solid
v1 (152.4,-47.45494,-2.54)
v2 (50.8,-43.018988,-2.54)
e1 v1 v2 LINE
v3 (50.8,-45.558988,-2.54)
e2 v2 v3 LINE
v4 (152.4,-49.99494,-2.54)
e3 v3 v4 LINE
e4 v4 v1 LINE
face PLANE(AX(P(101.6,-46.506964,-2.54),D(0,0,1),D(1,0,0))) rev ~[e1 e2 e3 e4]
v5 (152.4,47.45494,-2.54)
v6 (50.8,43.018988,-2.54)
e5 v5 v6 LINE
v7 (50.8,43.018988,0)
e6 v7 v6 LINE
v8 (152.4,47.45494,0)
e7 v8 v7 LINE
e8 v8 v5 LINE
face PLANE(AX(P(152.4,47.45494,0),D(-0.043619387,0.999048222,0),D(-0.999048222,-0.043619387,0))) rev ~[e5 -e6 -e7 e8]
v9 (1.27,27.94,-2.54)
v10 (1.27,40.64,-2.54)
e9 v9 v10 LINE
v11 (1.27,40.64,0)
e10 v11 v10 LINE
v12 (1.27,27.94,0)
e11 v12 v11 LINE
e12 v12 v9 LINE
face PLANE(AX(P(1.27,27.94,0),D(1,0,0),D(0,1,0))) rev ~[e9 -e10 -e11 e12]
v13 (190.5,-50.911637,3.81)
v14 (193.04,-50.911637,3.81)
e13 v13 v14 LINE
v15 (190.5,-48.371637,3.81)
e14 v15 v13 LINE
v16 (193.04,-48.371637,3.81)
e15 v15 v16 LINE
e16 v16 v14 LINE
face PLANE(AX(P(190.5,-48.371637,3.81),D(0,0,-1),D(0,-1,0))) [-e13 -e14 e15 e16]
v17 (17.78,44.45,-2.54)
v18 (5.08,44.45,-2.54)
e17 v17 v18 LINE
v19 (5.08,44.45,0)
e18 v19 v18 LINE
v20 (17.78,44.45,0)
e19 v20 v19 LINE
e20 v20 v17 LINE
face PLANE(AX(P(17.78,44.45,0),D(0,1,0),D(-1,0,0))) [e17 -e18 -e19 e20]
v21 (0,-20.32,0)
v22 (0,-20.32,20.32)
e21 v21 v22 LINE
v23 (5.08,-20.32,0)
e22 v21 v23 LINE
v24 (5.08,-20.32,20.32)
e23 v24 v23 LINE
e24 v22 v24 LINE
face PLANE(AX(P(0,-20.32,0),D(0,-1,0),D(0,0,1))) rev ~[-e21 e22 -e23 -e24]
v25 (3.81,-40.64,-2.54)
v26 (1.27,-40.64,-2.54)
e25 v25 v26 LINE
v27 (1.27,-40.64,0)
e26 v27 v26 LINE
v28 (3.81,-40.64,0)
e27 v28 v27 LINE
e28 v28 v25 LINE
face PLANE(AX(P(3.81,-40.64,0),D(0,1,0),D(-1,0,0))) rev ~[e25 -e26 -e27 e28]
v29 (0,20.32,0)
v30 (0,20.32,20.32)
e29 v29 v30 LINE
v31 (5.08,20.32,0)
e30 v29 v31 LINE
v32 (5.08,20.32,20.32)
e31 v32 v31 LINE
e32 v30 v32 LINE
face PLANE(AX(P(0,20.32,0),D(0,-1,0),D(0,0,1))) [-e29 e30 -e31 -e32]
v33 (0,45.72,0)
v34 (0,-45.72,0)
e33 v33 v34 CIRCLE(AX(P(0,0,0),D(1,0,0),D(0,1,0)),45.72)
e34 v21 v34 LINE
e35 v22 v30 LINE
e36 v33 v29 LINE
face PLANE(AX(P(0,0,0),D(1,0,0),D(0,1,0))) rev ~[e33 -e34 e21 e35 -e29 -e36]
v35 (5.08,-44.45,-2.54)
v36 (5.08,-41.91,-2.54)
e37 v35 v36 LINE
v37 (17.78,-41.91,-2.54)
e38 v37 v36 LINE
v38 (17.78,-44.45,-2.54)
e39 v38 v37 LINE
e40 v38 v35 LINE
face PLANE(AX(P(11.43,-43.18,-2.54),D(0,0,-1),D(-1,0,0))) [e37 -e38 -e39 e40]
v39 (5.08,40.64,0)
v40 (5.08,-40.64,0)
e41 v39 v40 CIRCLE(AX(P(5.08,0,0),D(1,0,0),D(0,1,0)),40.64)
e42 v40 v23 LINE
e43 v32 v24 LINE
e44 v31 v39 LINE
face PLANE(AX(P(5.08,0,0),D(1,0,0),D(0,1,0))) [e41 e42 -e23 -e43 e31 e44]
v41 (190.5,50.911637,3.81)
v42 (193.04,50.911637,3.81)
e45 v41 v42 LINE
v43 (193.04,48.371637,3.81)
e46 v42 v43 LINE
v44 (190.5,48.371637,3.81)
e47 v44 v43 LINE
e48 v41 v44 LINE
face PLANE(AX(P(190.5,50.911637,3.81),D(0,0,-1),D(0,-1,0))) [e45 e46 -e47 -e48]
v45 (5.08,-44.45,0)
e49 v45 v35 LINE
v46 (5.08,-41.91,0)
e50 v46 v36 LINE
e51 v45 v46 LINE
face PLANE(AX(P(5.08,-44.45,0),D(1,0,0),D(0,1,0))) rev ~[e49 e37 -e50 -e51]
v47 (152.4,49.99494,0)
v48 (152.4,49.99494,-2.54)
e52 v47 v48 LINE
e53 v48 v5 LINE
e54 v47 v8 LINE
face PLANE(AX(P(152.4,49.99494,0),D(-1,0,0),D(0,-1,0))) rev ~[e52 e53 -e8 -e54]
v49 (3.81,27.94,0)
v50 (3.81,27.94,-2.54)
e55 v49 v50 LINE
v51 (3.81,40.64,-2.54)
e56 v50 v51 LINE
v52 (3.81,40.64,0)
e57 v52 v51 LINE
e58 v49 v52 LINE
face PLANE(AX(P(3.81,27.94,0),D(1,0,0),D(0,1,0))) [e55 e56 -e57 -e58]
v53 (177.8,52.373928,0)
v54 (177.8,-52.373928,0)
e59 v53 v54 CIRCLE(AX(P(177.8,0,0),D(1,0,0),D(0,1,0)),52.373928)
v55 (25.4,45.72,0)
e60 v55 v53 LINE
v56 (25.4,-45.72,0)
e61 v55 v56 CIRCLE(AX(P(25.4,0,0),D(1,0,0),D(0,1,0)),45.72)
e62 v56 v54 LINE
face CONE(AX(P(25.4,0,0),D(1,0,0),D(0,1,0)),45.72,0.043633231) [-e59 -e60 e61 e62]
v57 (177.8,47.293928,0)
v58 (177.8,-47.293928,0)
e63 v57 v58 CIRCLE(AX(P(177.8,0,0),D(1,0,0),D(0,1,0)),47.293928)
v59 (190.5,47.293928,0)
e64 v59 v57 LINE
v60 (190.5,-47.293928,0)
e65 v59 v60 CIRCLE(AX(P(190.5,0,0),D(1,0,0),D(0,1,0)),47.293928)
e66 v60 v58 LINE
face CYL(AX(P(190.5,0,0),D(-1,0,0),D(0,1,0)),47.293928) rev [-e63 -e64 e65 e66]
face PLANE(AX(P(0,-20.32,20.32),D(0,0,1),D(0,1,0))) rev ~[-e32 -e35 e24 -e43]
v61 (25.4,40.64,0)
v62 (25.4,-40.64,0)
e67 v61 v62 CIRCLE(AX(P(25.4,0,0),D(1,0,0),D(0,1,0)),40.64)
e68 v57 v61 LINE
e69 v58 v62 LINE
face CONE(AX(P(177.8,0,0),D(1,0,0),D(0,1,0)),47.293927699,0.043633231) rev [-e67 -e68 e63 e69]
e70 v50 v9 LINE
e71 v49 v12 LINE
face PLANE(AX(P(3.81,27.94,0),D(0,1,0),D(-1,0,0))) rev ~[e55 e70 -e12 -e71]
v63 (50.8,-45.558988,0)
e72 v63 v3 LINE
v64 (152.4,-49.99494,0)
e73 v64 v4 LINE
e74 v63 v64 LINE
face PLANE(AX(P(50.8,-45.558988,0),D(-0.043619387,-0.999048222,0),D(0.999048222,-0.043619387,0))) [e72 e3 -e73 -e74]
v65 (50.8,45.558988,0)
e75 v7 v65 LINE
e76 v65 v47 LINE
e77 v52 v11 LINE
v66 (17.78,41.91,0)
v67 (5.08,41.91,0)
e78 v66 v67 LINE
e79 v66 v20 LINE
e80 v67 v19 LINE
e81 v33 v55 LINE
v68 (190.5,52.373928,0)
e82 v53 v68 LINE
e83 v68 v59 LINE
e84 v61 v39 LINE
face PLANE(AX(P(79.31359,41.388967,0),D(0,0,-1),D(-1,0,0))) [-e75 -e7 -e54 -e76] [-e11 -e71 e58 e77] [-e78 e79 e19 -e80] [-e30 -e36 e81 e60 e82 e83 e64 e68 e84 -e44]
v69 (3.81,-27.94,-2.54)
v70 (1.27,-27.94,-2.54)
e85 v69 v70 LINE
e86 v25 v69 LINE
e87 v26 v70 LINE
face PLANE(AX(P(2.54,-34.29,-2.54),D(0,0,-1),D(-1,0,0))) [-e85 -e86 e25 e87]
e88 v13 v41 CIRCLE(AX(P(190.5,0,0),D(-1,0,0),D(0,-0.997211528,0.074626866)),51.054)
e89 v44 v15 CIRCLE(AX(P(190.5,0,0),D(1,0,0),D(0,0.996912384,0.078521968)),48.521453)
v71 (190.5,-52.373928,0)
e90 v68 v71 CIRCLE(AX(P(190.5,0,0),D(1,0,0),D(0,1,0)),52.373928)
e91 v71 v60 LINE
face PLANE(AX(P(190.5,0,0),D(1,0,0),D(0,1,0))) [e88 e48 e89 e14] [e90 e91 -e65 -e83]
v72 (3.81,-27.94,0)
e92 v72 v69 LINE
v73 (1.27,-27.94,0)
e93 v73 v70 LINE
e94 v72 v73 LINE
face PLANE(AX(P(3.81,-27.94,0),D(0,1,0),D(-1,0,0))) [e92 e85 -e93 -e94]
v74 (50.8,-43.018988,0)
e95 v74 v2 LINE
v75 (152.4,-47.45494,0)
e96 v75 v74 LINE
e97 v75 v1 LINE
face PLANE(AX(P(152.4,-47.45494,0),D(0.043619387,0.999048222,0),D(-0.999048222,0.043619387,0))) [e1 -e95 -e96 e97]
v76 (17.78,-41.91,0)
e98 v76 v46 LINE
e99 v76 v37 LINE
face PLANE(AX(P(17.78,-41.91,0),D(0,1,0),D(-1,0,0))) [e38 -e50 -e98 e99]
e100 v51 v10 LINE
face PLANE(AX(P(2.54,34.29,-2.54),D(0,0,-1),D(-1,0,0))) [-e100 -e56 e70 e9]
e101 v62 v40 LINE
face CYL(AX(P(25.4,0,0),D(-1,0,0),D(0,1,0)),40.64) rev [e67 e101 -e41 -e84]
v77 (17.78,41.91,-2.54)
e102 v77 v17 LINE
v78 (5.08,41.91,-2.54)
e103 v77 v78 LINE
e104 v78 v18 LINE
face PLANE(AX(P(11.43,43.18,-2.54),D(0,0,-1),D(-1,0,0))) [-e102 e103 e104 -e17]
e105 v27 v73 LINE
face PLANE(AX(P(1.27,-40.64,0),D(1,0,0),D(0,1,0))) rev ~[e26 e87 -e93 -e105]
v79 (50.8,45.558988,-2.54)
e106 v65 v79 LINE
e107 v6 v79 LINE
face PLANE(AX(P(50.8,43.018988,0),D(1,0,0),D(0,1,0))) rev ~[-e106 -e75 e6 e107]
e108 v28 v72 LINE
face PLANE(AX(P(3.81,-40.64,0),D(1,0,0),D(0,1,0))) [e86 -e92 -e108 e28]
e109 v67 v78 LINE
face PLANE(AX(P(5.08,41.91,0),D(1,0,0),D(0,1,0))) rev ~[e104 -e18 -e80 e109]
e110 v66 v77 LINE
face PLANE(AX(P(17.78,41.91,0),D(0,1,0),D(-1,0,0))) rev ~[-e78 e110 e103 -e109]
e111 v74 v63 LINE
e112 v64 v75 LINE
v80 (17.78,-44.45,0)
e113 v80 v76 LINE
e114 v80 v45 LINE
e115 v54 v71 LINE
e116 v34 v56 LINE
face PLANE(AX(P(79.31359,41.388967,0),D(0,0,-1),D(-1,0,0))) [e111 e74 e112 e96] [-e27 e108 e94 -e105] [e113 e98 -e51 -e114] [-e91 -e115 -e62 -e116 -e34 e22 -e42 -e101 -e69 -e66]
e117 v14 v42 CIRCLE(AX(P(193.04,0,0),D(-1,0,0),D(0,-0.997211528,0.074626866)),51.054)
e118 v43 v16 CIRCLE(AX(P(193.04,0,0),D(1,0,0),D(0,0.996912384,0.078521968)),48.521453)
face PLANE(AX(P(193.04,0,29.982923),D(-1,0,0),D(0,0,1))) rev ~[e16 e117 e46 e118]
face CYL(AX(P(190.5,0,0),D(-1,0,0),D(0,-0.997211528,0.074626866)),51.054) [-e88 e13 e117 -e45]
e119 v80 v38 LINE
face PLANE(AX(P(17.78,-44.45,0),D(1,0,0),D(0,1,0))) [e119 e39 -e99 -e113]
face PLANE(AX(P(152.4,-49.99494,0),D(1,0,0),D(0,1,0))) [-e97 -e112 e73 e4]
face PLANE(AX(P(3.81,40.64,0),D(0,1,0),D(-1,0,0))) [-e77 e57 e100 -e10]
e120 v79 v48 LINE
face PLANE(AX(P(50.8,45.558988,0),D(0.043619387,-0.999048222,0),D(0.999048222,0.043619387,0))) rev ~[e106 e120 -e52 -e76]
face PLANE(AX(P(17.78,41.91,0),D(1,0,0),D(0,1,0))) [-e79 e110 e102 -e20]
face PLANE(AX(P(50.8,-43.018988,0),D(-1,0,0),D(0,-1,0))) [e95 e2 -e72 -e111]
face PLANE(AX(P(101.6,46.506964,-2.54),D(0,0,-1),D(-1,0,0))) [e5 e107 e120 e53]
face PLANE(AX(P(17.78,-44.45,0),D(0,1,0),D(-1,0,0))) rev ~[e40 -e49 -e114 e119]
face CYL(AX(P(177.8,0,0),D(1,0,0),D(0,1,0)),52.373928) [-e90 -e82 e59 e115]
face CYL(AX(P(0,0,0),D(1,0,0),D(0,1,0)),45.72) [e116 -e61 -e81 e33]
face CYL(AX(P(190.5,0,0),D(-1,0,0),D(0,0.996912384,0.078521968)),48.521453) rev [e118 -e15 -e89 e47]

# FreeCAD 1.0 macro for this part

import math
import FreeCAD as App
import Part
import Sketcher
from FreeCAD import Vector
Q = App.Units.Quantity

doc = App.newDocument("Part")
body = doc.addObject("PartDesign::Body", "Body")

sketch1 = body.newObject("Sketcher::SketchObject", "Sketch")
sketch1.AttachmentSupport = (doc.getObject("XY_Plane"), [""])
sketch1.MapMode = "FlatFace"
sketch1.addGeometry([
    Part.LineSegment(Vector(0, 46, 0), Vector(0, 0, 0)),
    Part.LineSegment(Vector(0, 0, 0), Vector(5, 0, 0)),
    Part.LineSegment(Vector(5, 0, 0), Vector(5, 41, 0)),
    Part.LineSegment(Vector(5, 41, 0), Vector(25, 41, 0)),
    Part.LineSegment(Vector(25, 41, 0), Vector(178, 47, 0)),
    Part.LineSegment(Vector(178, 47, 0), Vector(190, 47, 0)),
    Part.LineSegment(Vector(190, 47, 0), Vector(190, 52, 0)),
    Part.LineSegment(Vector(190, 52, 0), Vector(178, 52, 0)),
    Part.LineSegment(Vector(178, 52, 0), Vector(25, 46, 0)),
    Part.LineSegment(Vector(25, 46, 0), Vector(0, 46, 0)),
], False)
sketch1.addConstraint([
    Sketcher.Constraint("Coincident", 0, 2, 1, 1),
    Sketcher.Constraint("Coincident", 1, 2, 2, 1),
    Sketcher.Constraint("Coincident", 2, 2, 3, 1),
    Sketcher.Constraint("Coincident", 3, 2, 4, 1),
    Sketcher.Constraint("Coincident", 4, 2, 5, 1),
    Sketcher.Constraint("Coincident", 5, 2, 6, 1),
    Sketcher.Constraint("Coincident", 6, 2, 7, 1),
    Sketcher.Constraint("Coincident", 7, 2, 8, 1),
    Sketcher.Constraint("Coincident", 8, 2, 9, 1),
    Sketcher.Constraint("Coincident", 9, 2, 0, 1),
    Sketcher.Constraint("Vertical", 0),
    Sketcher.Constraint("Horizontal", 1),
    Sketcher.Constraint("Vertical", 2),
    Sketcher.Constraint("Horizontal", 3),
    Sketcher.Constraint("Horizontal", 5),
    Sketcher.Constraint("Vertical", 6),
    Sketcher.Constraint("Horizontal", 7),
    Sketcher.Constraint("Horizontal", 9),
    Sketcher.Constraint("Coincident", 0, 2, -1, 1),
    Sketcher.Constraint("Parallel", 4, 8),
    Sketcher.Constraint("Vertical", 4, 2, 7, 2),
    Sketcher.Constraint("Vertical", 3, 2, 8, 2),
    Sketcher.Constraint("Equal", 1, 6),
    Sketcher.Constraint("DistanceX", 9, 2, 9, 1, Q("1 in")),
    Sketcher.Constraint("DistanceX", 1, 1, 1, 2, Q("0.2 in")),
    Sketcher.Constraint("DistanceX", 5, 1, 5, 2, Q("0.5 in")),
    Sketcher.Constraint("DistanceY", 0, 2, 0, 1, Q("1.8 in")),
    Sketcher.Constraint("DistanceX", -1, 1, 4, 2, Q("7 in")),
    Sketcher.Constraint("Angle", 4, Q("2.5 deg")),
])
revolution = body.newObject("PartDesign::Revolution", "Revolution")
revolution.Profile = sketch1
revolution.ReferenceAxis = (sketch1, ["H_Axis"])
revolution.Angle = 180

sketch2 = body.newObject("Sketcher::SketchObject", "Sketch001")
sketch2.AttachmentSupport = (doc.getObject("YZ_Plane"), [""])
sketch2.MapMode = "FlatFace"
sketch2.addGeometry([
    Part.LineSegment(Vector(20, 0, 0), Vector(-20, 0, 0)),
    Part.LineSegment(Vector(-20, 0, 0), Vector(-20, 20, 0)),
    Part.LineSegment(Vector(-20, 20, 0), Vector(20, 20, 0)),
    Part.LineSegment(Vector(20, 20, 0), Vector(20, 0, 0)),
], False)
sketch2.addConstraint([
    Sketcher.Constraint("Coincident", 0, 2, 1, 1),
    Sketcher.Constraint("Coincident", 1, 2, 2, 1),
    Sketcher.Constraint("Coincident", 2, 2, 3, 1),
    Sketcher.Constraint("Coincident", 3, 2, 0, 1),
    Sketcher.Constraint("Horizontal", 0),
    Sketcher.Constraint("Vertical", 1),
    Sketcher.Constraint("Horizontal", 2),
    Sketcher.Constraint("Vertical", 3),
    Sketcher.Constraint("Symmetric", 0, 2, 3, 2, -1, 1),
    Sketcher.Constraint("DistanceX", 0, 2, 0, 1, Q("1.6 in")),
    Sketcher.Constraint("DistanceY", 1, 1, 1, 2, Q("0.8 in")),
])
pocket1 = body.newObject("PartDesign::Pocket", "Pocket")
pocket1.Profile = sketch2
pocket1.Length = Q("1.26 in")
pocket1.Reversed = True

sketch3 = body.newObject("Sketcher::SketchObject", "Sketch002")
sketch3.AttachmentSupport = (doc.getObject("XY_Plane"), [""])
sketch3.MapMode = "FlatFace"
sketch3.addGeometry([
    Part.LineSegment(Vector(3.8, 40.6, 0), Vector(3.8, 27.9, 0)),
    Part.LineSegment(Vector(3.8, 27.9, 0), Vector(1.3, 27.9, 0)),
    Part.LineSegment(Vector(1.3, 27.9, 0), Vector(1.3, 40.6, 0)),
    Part.LineSegment(Vector(1.3, 40.6, 0), Vector(3.8, 40.6, 0)),
    Part.LineSegment(Vector(152.4, 50, 0), Vector(152.4, 47.5, 0)),
    Part.LineSegment(Vector(152.4, 47.5, 0), Vector(50.8, 43, 0)),
    Part.LineSegment(Vector(50.8, 43, 0), Vector(50.8, 45.6, 0)),
    Part.LineSegment(Vector(50.8, 45.6, 0), Vector(152.4, 50, 0)),
    Part.LineSegment(Vector(17.8, 44.5, 0), Vector(17.8, 41.9, 0)),
    Part.LineSegment(Vector(17.8, 41.9, 0), Vector(5.1, 41.9, 0)),
    Part.LineSegment(Vector(5.1, 41.9, 0), Vector(5.1, 44.5, 0)),
    Part.LineSegment(Vector(5.1, 44.5, 0), Vector(17.8, 44.5, 0)),
    Part.LineSegment(Vector(50.8, -45.6, 0), Vector(50.8, -43, 0)),
    Part.LineSegment(Vector(50.8, -43, 0), Vector(152.4, -47.5, 0)),
    Part.LineSegment(Vector(152.4, -47.5, 0), Vector(152.4, -50, 0)),
    Part.LineSegment(Vector(152.4, -50, 0), Vector(50.8, -45.6, 0)),
    Part.LineSegment(Vector(17.8, -41.9, 0), Vector(17.8, -44.5, 0)),
    Part.LineSegment(Vector(17.8, -44.5, 0), Vector(5.1, -44.5, 0)),
    Part.LineSegment(Vector(5.1, -44.5, 0), Vector(5.1, -41.9, 0)),
    Part.LineSegment(Vector(5.1, -41.9, 0), Vector(17.8, -41.9, 0)),
    Part.LineSegment(Vector(3.8, -27.9, 0), Vector(3.8, -40.6, 0)),
    Part.LineSegment(Vector(3.8, -40.6, 0), Vector(1.3, -40.6, 0)),
    Part.LineSegment(Vector(1.3, -40.6, 0), Vector(1.3, -27.9, 0)),
    Part.LineSegment(Vector(1.3, -27.9, 0), Vector(3.8, -27.9, 0)),
], False)
sketch3.addConstraint([
    Sketcher.Constraint("Coincident", 0, 2, 1, 1),
    Sketcher.Constraint("Coincident", 1, 2, 2, 1),
    Sketcher.Constraint("Coincident", 2, 2, 3, 1),
    Sketcher.Constraint("Coincident", 3, 2, 0, 1),
    Sketcher.Constraint("Coincident", 4, 2, 5, 1),
    Sketcher.Constraint("Coincident", 5, 2, 6, 1),
    Sketcher.Constraint("Coincident", 6, 2, 7, 1),
    Sketcher.Constraint("Coincident", 7, 2, 4, 1),
    Sketcher.Constraint("Coincident", 8, 2, 9, 1),
    Sketcher.Constraint("Coincident", 9, 2, 10, 1),
    Sketcher.Constraint("Coincident", 10, 2, 11, 1),
    Sketcher.Constraint("Coincident", 11, 2, 8, 1),
    Sketcher.Constraint("Coincident", 12, 2, 13, 1),
    Sketcher.Constraint("Coincident", 13, 2, 14, 1),
    Sketcher.Constraint("Coincident", 14, 2, 15, 1),
    Sketcher.Constraint("Coincident", 15, 2, 12, 1),
    Sketcher.Constraint("Coincident", 16, 2, 17, 1),
    Sketcher.Constraint("Coincident", 17, 2, 18, 1),
    Sketcher.Constraint("Coincident", 18, 2, 19, 1),
    Sketcher.Constraint("Coincident", 19, 2, 16, 1),
    Sketcher.Constraint("Coincident", 20, 2, 21, 1),
    Sketcher.Constraint("Coincident", 21, 2, 22, 1),
    Sketcher.Constraint("Coincident", 22, 2, 23, 1),
    Sketcher.Constraint("Coincident", 23, 2, 20, 1),
    Sketcher.Constraint("Vertical", 0),
    Sketcher.Constraint("Horizontal", 1),
    Sketcher.Constraint("Vertical", 2),
    Sketcher.Constraint("Horizontal", 3),
    Sketcher.Constraint("Vertical", 4),
    Sketcher.Constraint("Vertical", 6),
    Sketcher.Constraint("Vertical", 8),
    Sketcher.Constraint("Horizontal", 9),
    Sketcher.Constraint("Vertical", 10),
    Sketcher.Constraint("Horizontal", 11),
    Sketcher.Constraint("Vertical", 12),
    Sketcher.Constraint("Vertical", 14),
    Sketcher.Constraint("Vertical", 16),
    Sketcher.Constraint("Horizontal", 17),
    Sketcher.Constraint("Vertical", 18),
    Sketcher.Constraint("Horizontal", 19),
    Sketcher.Constraint("Vertical", 20),
    Sketcher.Constraint("Horizontal", 21),
    Sketcher.Constraint("Vertical", 22),
    Sketcher.Constraint("Horizontal", 23),
    Sketcher.Constraint("Symmetric", 5, 2, 12, 2, -1),
    Sketcher.Constraint("Symmetric", 4, 2, 13, 2, -1),
    Sketcher.Constraint("Symmetric", 11, 2, 16, 2, -1),
    Sketcher.Constraint("Symmetric", 9, 2, 18, 2, -1),
    Sketcher.Constraint("Symmetric", 3, 2, 20, 2, -1),
    Sketcher.Constraint("Symmetric", 1, 2, 22, 2, -1),
    Sketcher.Constraint("Parallel", 5, 7),
    Sketcher.Constraint("Parallel", 13, 15),
    Sketcher.Constraint("Equal", 19, 0),
    Sketcher.Constraint("Equal", 23, 4),
    Sketcher.Constraint("Equal", 6, 8),
    Sketcher.Constraint("Equal", 10, 12),
    Sketcher.Constraint("DistanceX", 1, 2, 1, 1, Q("0.1 in")),
    Sketcher.Constraint("DistanceX", 9, 2, 9, 1, Q("0.5 in")),
    Sketcher.Constraint("DistanceX", -1, 1, 4, 2, Q("6 in")),
    Sketcher.Constraint("DistanceX", -1, 1, 5, 2, Q("2 in")),
    Sketcher.Constraint("DistanceY", -1, 1, 0, 2, Q("1.1 in")),
    Sketcher.Constraint("DistanceX", -1, 1, 8, 2, Q("0.7 in")),
    Sketcher.Constraint("Angle", 5, Q("-177.5 deg")),
    Sketcher.Constraint("DistanceX", -1, 1, 0, 2, Q("0.15 in")),
    Sketcher.Constraint("DistanceY", -1, 1, 8, 2, Q("1.65 in")),
    Sketcher.Constraint("DistanceY", -1, 1, 4, 2, Q("47.45494 mm")),
])
pad1 = body.newObject("PartDesign::Pad", "Pad")
pad1.Profile = sketch3
pad1.Length = Q("0.1 in")
pad1.Reversed = True

sketch4 = body.newObject("Sketcher::SketchObject", "Sketch003")
sketch4.AttachmentSupport = (doc.getObject("YZ_Plane"), [""])
sketch4.MapMode = "FlatFace"
sketch4.AttachmentOffset = App.Placement(Vector(0, 0, 7.5 * 25.4), App.Rotation())
sketch4.addGeometry([
    Part.LineSegment(Vector(48.4, 3.8, 0), Vector(50.9, 3.8, 0)),
    Part.ArcOfCircle(Part.Circle(Vector(0, 0, 0), Vector(0, 0, 1), 51.1), math.radians(4), math.radians(176)),
    Part.LineSegment(Vector(-50.9, 3.8, 0), Vector(-48.4, 3.8, 0)),
    Part.ArcOfCircle(Part.Circle(Vector(0, 0, 0), Vector(0, 0, 1), 48.5), math.radians(5), math.radians(175)),
], False)
sketch4.addConstraint([
    Sketcher.Constraint("Coincident", 0, 2, 1, 1),
    Sketcher.Constraint("Coincident", 1, 2, 2, 1),
    Sketcher.Constraint("Coincident", 2, 2, 3, 2),
    Sketcher.Constraint("Coincident", 3, 1, 0, 1),
    Sketcher.Constraint("Horizontal", 0),
    Sketcher.Constraint("Horizontal", 2),
    Sketcher.Constraint("Coincident", 1, 3, -1, 1),
    Sketcher.Constraint("Coincident", 3, 3, -1, 1),
    Sketcher.Constraint("Horizontal", 0, 2, 1, 2),
    Sketcher.Constraint("Radius", 1, Q("2.01 in")),
    Sketcher.Constraint("DistanceX", 0, 1, 0, 2, Q("0.1 in")),
    Sketcher.Constraint("DistanceY", -1, 1, 0, 2, Q("0.15 in")),
])
pad2 = body.newObject("PartDesign::Pad", "Pad001")
pad2.Profile = sketch4
pad2.Length = Q("0.1 in")

doc.recompute()
